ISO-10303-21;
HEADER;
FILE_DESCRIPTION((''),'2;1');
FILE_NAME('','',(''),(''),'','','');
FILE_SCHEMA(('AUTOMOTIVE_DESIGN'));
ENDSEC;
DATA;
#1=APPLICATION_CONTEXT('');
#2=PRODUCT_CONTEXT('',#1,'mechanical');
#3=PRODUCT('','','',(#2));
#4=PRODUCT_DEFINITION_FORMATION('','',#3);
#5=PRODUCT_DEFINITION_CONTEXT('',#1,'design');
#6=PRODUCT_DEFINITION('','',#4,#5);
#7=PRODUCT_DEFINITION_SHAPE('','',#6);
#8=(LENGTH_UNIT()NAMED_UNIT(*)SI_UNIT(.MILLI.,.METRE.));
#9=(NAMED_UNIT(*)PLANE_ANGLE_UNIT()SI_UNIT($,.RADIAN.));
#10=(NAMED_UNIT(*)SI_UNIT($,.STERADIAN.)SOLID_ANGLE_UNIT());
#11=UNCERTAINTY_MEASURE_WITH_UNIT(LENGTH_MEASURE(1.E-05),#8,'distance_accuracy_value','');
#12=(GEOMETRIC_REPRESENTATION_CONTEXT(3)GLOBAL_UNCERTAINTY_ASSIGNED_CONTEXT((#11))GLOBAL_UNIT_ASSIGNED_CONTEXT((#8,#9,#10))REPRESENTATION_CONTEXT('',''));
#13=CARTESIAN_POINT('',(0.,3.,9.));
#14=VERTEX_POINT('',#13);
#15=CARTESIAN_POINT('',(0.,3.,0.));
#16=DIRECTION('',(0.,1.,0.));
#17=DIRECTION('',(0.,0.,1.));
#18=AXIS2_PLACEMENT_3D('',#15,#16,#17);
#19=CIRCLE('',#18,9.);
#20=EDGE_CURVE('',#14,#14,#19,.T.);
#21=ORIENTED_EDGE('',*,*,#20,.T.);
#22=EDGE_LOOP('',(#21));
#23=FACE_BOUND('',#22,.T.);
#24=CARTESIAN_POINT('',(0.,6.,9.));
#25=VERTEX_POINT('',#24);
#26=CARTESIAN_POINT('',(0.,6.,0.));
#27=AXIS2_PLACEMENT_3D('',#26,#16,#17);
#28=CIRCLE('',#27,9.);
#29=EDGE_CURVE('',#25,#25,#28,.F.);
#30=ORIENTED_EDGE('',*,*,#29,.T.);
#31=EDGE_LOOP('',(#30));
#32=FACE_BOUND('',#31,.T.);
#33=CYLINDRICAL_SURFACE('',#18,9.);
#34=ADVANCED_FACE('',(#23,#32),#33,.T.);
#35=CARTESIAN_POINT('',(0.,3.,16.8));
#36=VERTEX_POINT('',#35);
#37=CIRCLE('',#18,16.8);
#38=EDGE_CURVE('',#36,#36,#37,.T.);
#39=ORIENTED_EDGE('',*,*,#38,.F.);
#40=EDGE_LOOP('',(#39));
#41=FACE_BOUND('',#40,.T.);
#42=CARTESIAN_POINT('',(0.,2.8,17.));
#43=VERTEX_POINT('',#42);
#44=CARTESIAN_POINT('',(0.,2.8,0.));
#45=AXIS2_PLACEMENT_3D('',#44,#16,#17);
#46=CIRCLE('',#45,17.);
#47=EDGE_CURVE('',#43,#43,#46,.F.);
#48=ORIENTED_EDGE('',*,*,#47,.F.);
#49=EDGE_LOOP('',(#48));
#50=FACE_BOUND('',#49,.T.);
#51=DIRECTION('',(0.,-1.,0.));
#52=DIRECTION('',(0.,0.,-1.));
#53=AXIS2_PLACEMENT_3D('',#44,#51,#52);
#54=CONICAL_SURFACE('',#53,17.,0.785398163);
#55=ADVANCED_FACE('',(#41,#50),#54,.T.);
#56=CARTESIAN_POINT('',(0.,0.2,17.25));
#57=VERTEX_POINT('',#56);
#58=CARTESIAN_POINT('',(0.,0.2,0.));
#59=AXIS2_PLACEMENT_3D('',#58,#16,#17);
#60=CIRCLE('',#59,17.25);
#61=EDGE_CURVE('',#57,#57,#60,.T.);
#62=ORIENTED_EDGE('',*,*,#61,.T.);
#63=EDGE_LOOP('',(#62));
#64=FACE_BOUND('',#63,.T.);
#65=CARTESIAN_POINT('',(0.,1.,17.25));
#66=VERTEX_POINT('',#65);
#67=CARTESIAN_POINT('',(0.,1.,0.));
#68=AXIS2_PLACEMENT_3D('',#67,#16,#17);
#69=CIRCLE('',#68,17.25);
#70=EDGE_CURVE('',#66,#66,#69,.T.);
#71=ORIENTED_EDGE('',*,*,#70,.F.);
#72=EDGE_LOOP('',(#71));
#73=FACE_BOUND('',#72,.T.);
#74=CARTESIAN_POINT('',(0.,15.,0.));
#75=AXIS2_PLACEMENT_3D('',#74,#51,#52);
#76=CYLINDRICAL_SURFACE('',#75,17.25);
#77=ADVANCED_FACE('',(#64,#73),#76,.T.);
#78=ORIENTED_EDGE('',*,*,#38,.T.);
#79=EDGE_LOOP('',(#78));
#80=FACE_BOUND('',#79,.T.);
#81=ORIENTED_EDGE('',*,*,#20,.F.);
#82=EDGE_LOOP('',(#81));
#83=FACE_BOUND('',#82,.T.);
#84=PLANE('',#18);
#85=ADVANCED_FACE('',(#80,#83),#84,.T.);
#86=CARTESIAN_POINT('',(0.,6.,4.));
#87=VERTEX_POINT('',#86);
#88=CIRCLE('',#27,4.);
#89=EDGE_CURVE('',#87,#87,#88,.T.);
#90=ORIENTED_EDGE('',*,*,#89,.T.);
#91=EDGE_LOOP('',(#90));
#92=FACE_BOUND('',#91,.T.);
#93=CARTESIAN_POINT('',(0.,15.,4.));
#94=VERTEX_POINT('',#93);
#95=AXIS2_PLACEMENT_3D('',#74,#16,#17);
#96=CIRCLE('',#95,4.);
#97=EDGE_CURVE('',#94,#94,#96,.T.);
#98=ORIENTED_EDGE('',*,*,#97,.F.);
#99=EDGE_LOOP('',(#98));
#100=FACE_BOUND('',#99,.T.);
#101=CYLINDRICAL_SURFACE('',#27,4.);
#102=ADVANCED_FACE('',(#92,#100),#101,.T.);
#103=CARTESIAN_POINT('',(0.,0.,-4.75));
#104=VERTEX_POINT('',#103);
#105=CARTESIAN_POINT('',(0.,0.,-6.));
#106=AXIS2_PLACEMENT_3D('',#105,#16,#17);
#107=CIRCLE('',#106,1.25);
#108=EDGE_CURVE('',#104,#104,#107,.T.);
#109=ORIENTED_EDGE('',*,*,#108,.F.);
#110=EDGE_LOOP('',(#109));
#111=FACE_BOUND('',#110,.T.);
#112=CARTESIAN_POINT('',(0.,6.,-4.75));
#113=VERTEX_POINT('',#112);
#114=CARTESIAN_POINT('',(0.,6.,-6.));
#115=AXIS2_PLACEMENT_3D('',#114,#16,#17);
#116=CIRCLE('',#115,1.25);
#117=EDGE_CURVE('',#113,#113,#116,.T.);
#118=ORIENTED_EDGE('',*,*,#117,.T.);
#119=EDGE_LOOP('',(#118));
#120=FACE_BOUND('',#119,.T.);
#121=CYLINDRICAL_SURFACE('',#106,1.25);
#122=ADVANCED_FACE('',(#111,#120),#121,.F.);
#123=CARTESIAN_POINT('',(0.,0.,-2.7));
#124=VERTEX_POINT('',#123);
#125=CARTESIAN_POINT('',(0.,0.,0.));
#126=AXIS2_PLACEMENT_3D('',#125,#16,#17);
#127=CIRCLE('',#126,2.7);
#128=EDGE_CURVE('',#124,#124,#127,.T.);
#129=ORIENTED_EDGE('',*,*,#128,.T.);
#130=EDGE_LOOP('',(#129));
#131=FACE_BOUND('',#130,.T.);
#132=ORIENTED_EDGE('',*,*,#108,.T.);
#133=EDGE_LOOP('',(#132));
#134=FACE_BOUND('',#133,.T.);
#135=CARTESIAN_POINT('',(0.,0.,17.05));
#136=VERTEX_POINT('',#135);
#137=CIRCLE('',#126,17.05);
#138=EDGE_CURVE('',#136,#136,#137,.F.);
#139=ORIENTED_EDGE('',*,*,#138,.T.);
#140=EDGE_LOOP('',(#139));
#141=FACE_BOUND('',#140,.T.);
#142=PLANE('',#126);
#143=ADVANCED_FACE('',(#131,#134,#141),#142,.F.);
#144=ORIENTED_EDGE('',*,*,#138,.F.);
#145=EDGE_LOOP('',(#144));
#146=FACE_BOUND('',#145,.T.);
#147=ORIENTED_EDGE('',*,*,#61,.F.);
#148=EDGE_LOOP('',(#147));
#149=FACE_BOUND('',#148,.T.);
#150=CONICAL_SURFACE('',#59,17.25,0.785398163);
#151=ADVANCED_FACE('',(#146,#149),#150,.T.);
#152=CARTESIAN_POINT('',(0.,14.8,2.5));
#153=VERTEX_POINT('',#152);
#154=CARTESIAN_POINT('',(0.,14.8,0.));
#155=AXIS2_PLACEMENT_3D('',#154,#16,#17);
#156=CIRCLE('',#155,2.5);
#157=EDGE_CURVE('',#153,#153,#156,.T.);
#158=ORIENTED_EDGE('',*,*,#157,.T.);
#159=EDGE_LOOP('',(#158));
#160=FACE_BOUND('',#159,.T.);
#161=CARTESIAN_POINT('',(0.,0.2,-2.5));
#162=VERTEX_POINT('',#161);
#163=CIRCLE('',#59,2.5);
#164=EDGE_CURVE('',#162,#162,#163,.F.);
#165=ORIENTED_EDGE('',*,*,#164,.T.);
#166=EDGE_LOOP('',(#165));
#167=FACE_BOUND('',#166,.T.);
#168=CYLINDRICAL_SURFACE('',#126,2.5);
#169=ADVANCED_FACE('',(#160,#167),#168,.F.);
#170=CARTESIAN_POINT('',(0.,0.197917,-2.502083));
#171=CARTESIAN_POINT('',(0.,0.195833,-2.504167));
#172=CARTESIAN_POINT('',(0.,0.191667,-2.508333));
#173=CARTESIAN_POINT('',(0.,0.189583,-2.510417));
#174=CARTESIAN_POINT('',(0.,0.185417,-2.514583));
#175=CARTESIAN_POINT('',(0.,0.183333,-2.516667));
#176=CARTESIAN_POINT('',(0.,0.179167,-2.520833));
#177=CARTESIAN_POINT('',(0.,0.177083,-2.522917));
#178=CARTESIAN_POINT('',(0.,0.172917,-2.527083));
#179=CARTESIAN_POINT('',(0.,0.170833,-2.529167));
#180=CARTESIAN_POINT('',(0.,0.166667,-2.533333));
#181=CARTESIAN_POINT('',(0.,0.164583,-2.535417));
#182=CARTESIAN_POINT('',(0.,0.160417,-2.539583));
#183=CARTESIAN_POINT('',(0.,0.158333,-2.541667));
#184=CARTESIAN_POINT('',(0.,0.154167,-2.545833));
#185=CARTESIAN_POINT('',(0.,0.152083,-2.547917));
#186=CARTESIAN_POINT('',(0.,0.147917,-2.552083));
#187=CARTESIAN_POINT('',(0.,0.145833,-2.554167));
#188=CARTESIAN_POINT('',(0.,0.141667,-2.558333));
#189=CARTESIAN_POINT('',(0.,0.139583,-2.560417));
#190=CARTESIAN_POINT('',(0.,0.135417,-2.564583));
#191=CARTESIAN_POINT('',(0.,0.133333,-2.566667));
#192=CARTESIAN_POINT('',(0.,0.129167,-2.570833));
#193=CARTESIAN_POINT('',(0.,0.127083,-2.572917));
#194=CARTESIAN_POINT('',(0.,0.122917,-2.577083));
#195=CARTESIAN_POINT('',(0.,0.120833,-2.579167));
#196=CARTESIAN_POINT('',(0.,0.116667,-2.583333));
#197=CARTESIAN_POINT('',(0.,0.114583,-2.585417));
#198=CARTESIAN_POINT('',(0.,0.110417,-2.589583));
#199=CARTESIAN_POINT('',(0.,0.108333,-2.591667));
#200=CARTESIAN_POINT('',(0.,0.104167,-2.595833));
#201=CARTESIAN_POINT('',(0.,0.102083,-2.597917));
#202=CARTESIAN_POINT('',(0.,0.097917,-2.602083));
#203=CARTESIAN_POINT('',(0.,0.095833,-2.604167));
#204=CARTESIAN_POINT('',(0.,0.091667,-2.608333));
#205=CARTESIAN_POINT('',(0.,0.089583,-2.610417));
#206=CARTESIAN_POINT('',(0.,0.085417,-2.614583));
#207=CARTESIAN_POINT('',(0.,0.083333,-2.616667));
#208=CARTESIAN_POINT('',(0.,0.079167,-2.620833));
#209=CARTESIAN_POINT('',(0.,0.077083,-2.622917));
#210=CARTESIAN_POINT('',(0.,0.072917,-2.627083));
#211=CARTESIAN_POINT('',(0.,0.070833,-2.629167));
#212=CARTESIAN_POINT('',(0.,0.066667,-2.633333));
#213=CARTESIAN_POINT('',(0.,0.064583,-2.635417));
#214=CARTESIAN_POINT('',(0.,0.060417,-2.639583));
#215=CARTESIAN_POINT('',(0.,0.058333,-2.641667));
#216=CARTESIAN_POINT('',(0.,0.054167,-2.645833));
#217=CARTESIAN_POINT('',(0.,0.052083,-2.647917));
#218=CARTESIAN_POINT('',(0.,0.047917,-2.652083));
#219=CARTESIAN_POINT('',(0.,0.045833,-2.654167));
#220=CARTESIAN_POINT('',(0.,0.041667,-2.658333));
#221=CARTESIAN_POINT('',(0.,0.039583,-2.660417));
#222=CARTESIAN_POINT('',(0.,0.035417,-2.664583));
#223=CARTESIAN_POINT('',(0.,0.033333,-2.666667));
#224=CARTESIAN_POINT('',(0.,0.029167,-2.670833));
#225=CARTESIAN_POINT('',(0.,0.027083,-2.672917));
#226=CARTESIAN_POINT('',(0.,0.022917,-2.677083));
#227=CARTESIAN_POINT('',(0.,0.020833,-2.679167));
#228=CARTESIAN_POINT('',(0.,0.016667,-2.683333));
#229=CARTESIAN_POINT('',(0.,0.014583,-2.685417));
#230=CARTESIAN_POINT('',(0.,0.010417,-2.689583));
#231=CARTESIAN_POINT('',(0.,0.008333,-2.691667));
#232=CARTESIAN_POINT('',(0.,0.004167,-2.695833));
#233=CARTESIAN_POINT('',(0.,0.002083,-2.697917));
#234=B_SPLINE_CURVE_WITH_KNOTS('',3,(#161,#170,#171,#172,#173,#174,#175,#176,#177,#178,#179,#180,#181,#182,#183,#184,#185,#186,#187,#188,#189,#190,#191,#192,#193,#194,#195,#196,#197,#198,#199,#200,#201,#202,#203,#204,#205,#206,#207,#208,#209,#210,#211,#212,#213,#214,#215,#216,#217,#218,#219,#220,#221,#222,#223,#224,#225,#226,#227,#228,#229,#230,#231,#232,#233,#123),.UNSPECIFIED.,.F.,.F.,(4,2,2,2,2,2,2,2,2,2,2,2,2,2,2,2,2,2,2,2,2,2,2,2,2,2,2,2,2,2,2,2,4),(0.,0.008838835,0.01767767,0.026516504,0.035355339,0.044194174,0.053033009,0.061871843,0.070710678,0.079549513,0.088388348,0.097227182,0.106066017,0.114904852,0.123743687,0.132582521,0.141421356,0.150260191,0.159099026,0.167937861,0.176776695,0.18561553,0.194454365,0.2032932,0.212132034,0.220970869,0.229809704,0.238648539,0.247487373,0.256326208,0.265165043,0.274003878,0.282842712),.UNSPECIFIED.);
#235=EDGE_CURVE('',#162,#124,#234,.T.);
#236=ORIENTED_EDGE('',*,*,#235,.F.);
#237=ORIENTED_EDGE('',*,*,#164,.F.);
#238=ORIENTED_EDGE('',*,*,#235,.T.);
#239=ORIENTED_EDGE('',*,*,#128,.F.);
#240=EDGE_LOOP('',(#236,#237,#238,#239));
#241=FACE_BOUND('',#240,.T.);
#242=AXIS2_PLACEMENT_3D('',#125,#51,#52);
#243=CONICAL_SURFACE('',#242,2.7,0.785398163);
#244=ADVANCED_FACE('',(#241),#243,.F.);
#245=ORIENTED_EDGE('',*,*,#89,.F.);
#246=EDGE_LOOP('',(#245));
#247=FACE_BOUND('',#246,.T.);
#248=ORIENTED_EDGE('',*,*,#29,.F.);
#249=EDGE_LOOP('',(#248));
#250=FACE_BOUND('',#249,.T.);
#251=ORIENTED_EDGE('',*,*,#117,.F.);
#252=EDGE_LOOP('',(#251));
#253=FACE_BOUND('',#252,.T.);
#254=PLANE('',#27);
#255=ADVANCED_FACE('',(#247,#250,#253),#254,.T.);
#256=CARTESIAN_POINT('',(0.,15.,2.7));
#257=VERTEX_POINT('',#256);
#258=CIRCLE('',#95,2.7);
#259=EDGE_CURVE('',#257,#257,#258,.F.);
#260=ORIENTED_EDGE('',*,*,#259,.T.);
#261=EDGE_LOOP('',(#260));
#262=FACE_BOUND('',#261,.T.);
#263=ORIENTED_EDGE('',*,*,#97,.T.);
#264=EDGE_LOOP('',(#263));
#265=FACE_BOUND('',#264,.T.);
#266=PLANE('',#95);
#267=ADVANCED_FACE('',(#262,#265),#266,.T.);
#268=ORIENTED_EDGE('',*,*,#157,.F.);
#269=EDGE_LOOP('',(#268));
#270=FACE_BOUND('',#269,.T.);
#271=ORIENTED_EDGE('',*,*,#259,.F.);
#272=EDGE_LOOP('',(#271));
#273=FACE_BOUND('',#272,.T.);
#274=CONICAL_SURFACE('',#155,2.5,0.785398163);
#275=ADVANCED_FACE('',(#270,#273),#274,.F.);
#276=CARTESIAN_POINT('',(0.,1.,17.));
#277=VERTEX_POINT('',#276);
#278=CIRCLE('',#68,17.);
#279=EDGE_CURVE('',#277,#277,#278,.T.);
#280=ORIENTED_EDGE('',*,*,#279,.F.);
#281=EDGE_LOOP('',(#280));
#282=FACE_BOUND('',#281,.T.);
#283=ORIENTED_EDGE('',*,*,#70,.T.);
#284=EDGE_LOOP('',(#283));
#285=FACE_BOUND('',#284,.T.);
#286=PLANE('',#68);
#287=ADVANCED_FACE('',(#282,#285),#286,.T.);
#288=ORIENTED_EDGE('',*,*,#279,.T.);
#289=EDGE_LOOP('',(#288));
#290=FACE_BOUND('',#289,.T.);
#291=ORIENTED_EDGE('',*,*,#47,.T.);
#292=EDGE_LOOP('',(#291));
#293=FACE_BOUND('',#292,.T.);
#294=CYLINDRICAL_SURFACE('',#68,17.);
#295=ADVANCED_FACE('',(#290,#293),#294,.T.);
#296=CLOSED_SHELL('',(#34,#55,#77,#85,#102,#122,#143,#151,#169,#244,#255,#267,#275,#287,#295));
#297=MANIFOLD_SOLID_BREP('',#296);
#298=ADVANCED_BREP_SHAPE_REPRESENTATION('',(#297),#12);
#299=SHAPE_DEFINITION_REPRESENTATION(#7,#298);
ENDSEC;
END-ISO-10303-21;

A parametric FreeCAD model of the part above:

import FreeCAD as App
import Part
import Sketcher

V = App.Vector
Q = App.Units.Quantity


def edges_at(feature, points):
    """Names of the edges that pass closest to the given points."""
    edges = feature.Shape.Edges
    near = lambda p: min(range(len(edges)), key=lambda i: edges[i].distToShape(Part.Vertex(*p))[0])
    return sorted({f"Edge{near(p) + 1}" for p in points})

doc = App.newDocument("Part")
params = doc.addObject("Spreadsheet::Sheet", "Params")
for row, (alias, value) in enumerate([
    ("sketch1_diameter", "34.5 mm"),
    ("pad1_length", "15 mm"),
    ("sketch2_diameter", "34 mm"),
    ("pocket1_length", "14 mm"),
    ("sketch3_diameter", "18 mm"),
    ("pocket2_length", "12 mm"),
    ("sketch4_diameter", "8 mm"),
    ("pocket3_length", "9 mm"),
    ("sketch5_diameter", "5 mm"),
    ("sketch6_diameter", "2.5 mm"),
    ("chamfer_size", "0.2 mm"),
], start=1):
    params.set(f"A{row}", alias)
    params.set(f"B{row}", "=" + value)
    params.setAlias(f"B{row}", alias)

body = doc.addObject("PartDesign::Body", "Body")

sketch1 = body.newObject("Sketcher::SketchObject", "Sketch")
sketch1.AttachmentSupport = (doc.getObject("XZ_Plane"), [""])
sketch1.MapMode = "FlatFace"
sketch1.addGeometry(Part.Circle(V(0, 0, 0), V(0, 0, 1), 17), False)
sketch1.addConstraint(Sketcher.Constraint("Coincident", 0, 3, -1, 1))
sketch1.addConstraint(Sketcher.Constraint("Diameter", 0, Q("34.5 mm")))
sketch1.setExpression("Constraints[1]", "Params.sketch1_diameter")
pad1 = body.newObject("PartDesign::Pad", "Pad")
pad1.Profile = sketch1
pad1.setExpression("Length", "Params.pad1_length")
pad1.Reversed = True

sketch2 = body.newObject("Sketcher::SketchObject", "Sketch001")
sketch2.AttachmentSupport = (doc.getObject("XZ_Plane"), [""])
sketch2.MapMode = "FlatFace"
sketch2.AttachmentOffset = App.Placement(V(0, 0, -15), App.Rotation())
sketch2.addGeometry(Part.LineSegment(V(-23, -23, 0), V(-23, 23, 0)), False)
sketch2.addGeometry(Part.LineSegment(V(-23, 23, 0), V(23, 23, 0)), False)
sketch2.addGeometry(Part.LineSegment(V(23, 23, 0), V(23, -23, 0)), False)
sketch2.addGeometry(Part.LineSegment(V(23, -23, 0), V(-23, -23, 0)), False)
sketch2.addGeometry(Part.Circle(V(0, 0, 0), V(0, 0, 1), 17), False)
sketch2.addConstraint(Sketcher.Constraint("Coincident", 0, 2, 1, 1))
sketch2.addConstraint(Sketcher.Constraint("Coincident", 1, 2, 2, 1))
sketch2.addConstraint(Sketcher.Constraint("Coincident", 2, 2, 3, 1))
sketch2.addConstraint(Sketcher.Constraint("Coincident", 3, 2, 0, 1))
sketch2.addConstraint(Sketcher.Constraint("Vertical", 0))
sketch2.addConstraint(Sketcher.Constraint("Horizontal", 1))
sketch2.addConstraint(Sketcher.Constraint("Vertical", 2))
sketch2.addConstraint(Sketcher.Constraint("Horizontal", 3))
sketch2.addConstraint(Sketcher.Constraint("Coincident", 4, 3, -1, 1))
sketch2.addConstraint(Sketcher.Constraint("Symmetric", 0, 2, 2, 2, -1, 1))
sketch2.addConstraint(Sketcher.Constraint("Equal", 3, 0))
sketch2.addConstraint(Sketcher.Constraint("Diameter", 4, Q("34 mm")))
sketch2.addConstraint(Sketcher.Constraint("DistanceX", 1, 1, 1, 2, Q("46.708 mm")))
sketch2.setExpression("Constraints[11]", "Params.sketch2_diameter")
pocket1 = body.newObject("PartDesign::Pocket", "Pocket")
pocket1.Profile = sketch2
pocket1.setExpression("Length", "Params.pocket1_length")
pocket1.Reversed = True

sketch3 = body.newObject("Sketcher::SketchObject", "Sketch002")
sketch3.AttachmentSupport = (doc.getObject("XZ_Plane"), [""])
sketch3.MapMode = "FlatFace"
sketch3.AttachmentOffset = App.Placement(V(0, 0, -15), App.Rotation())
sketch3.addGeometry(Part.LineSegment(V(-23, -23, 0), V(-23, 23, 0)), False)
sketch3.addGeometry(Part.LineSegment(V(-23, 23, 0), V(23, 23, 0)), False)
sketch3.addGeometry(Part.LineSegment(V(23, 23, 0), V(23, -23, 0)), False)
sketch3.addGeometry(Part.LineSegment(V(23, -23, 0), V(-23, -23, 0)), False)
sketch3.addGeometry(Part.Circle(V(0, 0, 0), V(0, 0, 1), 9), False)
sketch3.addConstraint(Sketcher.Constraint("Coincident", 0, 2, 1, 1))
sketch3.addConstraint(Sketcher.Constraint("Coincident", 1, 2, 2, 1))
sketch3.addConstraint(Sketcher.Constraint("Coincident", 2, 2, 3, 1))
sketch3.addConstraint(Sketcher.Constraint("Coincident", 3, 2, 0, 1))
sketch3.addConstraint(Sketcher.Constraint("Vertical", 0))
sketch3.addConstraint(Sketcher.Constraint("Horizontal", 1))
sketch3.addConstraint(Sketcher.Constraint("Vertical", 2))
sketch3.addConstraint(Sketcher.Constraint("Horizontal", 3))
sketch3.addConstraint(Sketcher.Constraint("Coincident", 4, 3, -1, 1))
sketch3.addConstraint(Sketcher.Constraint("Symmetric", 0, 2, 2, 2, -1, 1))
sketch3.addConstraint(Sketcher.Constraint("Equal", 3, 0))
sketch3.addConstraint(Sketcher.Constraint("Diameter", 4, Q("18 mm")))
sketch3.addConstraint(Sketcher.Constraint("DistanceX", 1, 1, 1, 2, Q("46.708 mm")))
sketch3.setExpression("Constraints[11]", "Params.sketch3_diameter")
pocket2 = body.newObject("PartDesign::Pocket", "Pocket001")
pocket2.Profile = sketch3
pocket2.setExpression("Length", "Params.pocket2_length")
pocket2.Reversed = True

sketch4 = body.newObject("Sketcher::SketchObject", "Sketch003")
sketch4.AttachmentSupport = (doc.getObject("XZ_Plane"), [""])
sketch4.MapMode = "FlatFace"
sketch4.AttachmentOffset = App.Placement(V(0, 0, -15), App.Rotation())
sketch4.addGeometry(Part.LineSegment(V(-23.4, -23.4, 0), V(-23.4, 23.4, 0)), False)
sketch4.addGeometry(Part.LineSegment(V(-23.4, 23.4, 0), V(23.4, 23.4, 0)), False)
sketch4.addGeometry(Part.LineSegment(V(23.4, 23.4, 0), V(23.4, -23.4, 0)), False)
sketch4.addGeometry(Part.LineSegment(V(23.4, -23.4, 0), V(-23.4, -23.4, 0)), False)
sketch4.addGeometry(Part.Circle(V(0, 0, 0), V(0, 0, 1), 4), False)
sketch4.addConstraint(Sketcher.Constraint("Coincident", 0, 2, 1, 1))
sketch4.addConstraint(Sketcher.Constraint("Coincident", 1, 2, 2, 1))
sketch4.addConstraint(Sketcher.Constraint("Coincident", 2, 2, 3, 1))
sketch4.addConstraint(Sketcher.Constraint("Coincident", 3, 2, 0, 1))
sketch4.addConstraint(Sketcher.Constraint("Vertical", 0))
sketch4.addConstraint(Sketcher.Constraint("Horizontal", 1))
sketch4.addConstraint(Sketcher.Constraint("Vertical", 2))
sketch4.addConstraint(Sketcher.Constraint("Horizontal", 3))
sketch4.addConstraint(Sketcher.Constraint("Coincident", 4, 3, -1, 1))
sketch4.addConstraint(Sketcher.Constraint("Symmetric", 0, 2, 2, 2, -1, 1))
sketch4.addConstraint(Sketcher.Constraint("Equal", 3, 0))
sketch4.addConstraint(Sketcher.Constraint("Diameter", 4, Q("8 mm")))
sketch4.addConstraint(Sketcher.Constraint("DistanceX", 1, 1, 1, 2, Q("46.708 mm")))
sketch4.setExpression("Constraints[11]", "Params.sketch4_diameter")
pocket3 = body.newObject("PartDesign::Pocket", "Pocket002")
pocket3.Profile = sketch4
pocket3.setExpression("Length", "Params.pocket3_length")
pocket3.Reversed = True

sketch5 = body.newObject("Sketcher::SketchObject", "Sketch004")
sketch5.AttachmentSupport = (doc.getObject("XZ_Plane"), [""])
sketch5.MapMode = "FlatFace"
sketch5.AttachmentOffset = App.Placement(V(0, 0, -15), App.Rotation())
sketch5.addGeometry(Part.Circle(V(0, 0, 0), V(0, 0, 1), 2.5), False)
sketch5.addConstraint(Sketcher.Constraint("Coincident", 0, 3, -1, 1))
sketch5.addConstraint(Sketcher.Constraint("Diameter", 0, Q("5 mm")))
sketch5.setExpression("Constraints[1]", "Params.sketch5_diameter")
pocket4 = body.newObject("PartDesign::Pocket", "Pocket003")
pocket4.Profile = sketch5
pocket4.Type = "ThroughAll"
pocket4.Reversed = True

sketch6 = body.newObject("Sketcher::SketchObject", "Sketch005")
sketch6.AttachmentSupport = (doc.getObject("XZ_Plane"), [""])
sketch6.MapMode = "FlatFace"
sketch6.AttachmentOffset = App.Placement(V(0, 0, -6), App.Rotation())
sketch6.addGeometry(Part.Circle(V(0, -6, 0), V(0, 0, 1), 1.2), False)
sketch6.addConstraint(Sketcher.Constraint("PointOnObject", 0, 3, -2))
sketch6.addConstraint(Sketcher.Constraint("Diameter", 0, Q("2.5 mm")))
sketch6.addConstraint(Sketcher.Constraint("DistanceY", 0, 3, -1, 1, Q("6 mm")))
sketch6.setExpression("Constraints[1]", "Params.sketch6_diameter")
pocket5 = body.newObject("PartDesign::Pocket", "Pocket004")
pocket5.Profile = sketch6
pocket5.Type = "ThroughAll"
pocket5.Reversed = True
doc.recompute()

chamfer = body.newObject("PartDesign::Chamfer", "Chamfer")
chamfer.Base = (pocket5, edges_at(pocket5, [
    (0, 0, -17.25),
    (0, 3, -17),
    (0, 0, -2.5),
    (0, 15, -2.5),
]))
chamfer.setExpression("Size", "Params.chamfer_size")

doc.recompute()
